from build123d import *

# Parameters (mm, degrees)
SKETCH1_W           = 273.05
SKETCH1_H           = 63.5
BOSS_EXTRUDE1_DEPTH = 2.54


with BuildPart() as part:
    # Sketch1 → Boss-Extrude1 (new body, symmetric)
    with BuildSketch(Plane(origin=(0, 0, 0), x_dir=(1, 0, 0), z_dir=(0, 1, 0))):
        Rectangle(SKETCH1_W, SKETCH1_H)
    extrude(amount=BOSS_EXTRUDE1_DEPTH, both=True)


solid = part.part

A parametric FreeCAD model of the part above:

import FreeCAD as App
import Part
import Sketcher

V = App.Vector
Q = App.Units.Quantity

doc = App.newDocument("Part")
body = doc.addObject("PartDesign::Body", "Body")

# Sketch on XZ plane
sketch1 = doc.addObject("Sketcher::SketchObject", "Sketch")
body.addObject(sketch1)
sketch1.AttachmentSupport = (doc.XZ_Plane, [""])
sketch1.MapMode = "FlatFace"
sketch1.addGeometry(Part.LineSegment(V(-137, -32, 0), V(-137, 32, 0)), False)
sketch1.addGeometry(Part.LineSegment(V(-137, 32, 0), V(137, 32, 0)), False)
sketch1.addGeometry(Part.LineSegment(V(137, 32, 0), V(137, -32, 0)), False)
sketch1.addGeometry(Part.LineSegment(V(137, -32, 0), V(-137, -32, 0)), False)
sketch1.addConstraint(Sketcher.Constraint("Coincident", 0, 2, 1, 1))
sketch1.addConstraint(Sketcher.Constraint("Coincident", 1, 2, 2, 1))
sketch1.addConstraint(Sketcher.Constraint("Coincident", 2, 2, 3, 1))
sketch1.addConstraint(Sketcher.Constraint("Coincident", 3, 2, 0, 1))
sketch1.addConstraint(Sketcher.Constraint("Vertical", 0))
sketch1.addConstraint(Sketcher.Constraint("Horizontal", 1))
sketch1.addConstraint(Sketcher.Constraint("Vertical", 2))
sketch1.addConstraint(Sketcher.Constraint("Horizontal", 3))
sketch1.addConstraint(Sketcher.Constraint("Symmetric", 0, 2, 2, 2, -1, 1))
sketch1.addConstraint(Sketcher.Constraint("DistanceY", 0, 1, 0, 2, Q("2.5 in")))
sketch1.addConstraint(Sketcher.Constraint("DistanceX", 1, 1, 1, 2, Q("10.75 in")))
pad1 = doc.addObject("PartDesign::Pad", "Pad")
body.addObject(pad1)
pad1.Profile = sketch1
pad1.Length = Q("0.2 in")
pad1.Midplane = True

doc.recompute()
